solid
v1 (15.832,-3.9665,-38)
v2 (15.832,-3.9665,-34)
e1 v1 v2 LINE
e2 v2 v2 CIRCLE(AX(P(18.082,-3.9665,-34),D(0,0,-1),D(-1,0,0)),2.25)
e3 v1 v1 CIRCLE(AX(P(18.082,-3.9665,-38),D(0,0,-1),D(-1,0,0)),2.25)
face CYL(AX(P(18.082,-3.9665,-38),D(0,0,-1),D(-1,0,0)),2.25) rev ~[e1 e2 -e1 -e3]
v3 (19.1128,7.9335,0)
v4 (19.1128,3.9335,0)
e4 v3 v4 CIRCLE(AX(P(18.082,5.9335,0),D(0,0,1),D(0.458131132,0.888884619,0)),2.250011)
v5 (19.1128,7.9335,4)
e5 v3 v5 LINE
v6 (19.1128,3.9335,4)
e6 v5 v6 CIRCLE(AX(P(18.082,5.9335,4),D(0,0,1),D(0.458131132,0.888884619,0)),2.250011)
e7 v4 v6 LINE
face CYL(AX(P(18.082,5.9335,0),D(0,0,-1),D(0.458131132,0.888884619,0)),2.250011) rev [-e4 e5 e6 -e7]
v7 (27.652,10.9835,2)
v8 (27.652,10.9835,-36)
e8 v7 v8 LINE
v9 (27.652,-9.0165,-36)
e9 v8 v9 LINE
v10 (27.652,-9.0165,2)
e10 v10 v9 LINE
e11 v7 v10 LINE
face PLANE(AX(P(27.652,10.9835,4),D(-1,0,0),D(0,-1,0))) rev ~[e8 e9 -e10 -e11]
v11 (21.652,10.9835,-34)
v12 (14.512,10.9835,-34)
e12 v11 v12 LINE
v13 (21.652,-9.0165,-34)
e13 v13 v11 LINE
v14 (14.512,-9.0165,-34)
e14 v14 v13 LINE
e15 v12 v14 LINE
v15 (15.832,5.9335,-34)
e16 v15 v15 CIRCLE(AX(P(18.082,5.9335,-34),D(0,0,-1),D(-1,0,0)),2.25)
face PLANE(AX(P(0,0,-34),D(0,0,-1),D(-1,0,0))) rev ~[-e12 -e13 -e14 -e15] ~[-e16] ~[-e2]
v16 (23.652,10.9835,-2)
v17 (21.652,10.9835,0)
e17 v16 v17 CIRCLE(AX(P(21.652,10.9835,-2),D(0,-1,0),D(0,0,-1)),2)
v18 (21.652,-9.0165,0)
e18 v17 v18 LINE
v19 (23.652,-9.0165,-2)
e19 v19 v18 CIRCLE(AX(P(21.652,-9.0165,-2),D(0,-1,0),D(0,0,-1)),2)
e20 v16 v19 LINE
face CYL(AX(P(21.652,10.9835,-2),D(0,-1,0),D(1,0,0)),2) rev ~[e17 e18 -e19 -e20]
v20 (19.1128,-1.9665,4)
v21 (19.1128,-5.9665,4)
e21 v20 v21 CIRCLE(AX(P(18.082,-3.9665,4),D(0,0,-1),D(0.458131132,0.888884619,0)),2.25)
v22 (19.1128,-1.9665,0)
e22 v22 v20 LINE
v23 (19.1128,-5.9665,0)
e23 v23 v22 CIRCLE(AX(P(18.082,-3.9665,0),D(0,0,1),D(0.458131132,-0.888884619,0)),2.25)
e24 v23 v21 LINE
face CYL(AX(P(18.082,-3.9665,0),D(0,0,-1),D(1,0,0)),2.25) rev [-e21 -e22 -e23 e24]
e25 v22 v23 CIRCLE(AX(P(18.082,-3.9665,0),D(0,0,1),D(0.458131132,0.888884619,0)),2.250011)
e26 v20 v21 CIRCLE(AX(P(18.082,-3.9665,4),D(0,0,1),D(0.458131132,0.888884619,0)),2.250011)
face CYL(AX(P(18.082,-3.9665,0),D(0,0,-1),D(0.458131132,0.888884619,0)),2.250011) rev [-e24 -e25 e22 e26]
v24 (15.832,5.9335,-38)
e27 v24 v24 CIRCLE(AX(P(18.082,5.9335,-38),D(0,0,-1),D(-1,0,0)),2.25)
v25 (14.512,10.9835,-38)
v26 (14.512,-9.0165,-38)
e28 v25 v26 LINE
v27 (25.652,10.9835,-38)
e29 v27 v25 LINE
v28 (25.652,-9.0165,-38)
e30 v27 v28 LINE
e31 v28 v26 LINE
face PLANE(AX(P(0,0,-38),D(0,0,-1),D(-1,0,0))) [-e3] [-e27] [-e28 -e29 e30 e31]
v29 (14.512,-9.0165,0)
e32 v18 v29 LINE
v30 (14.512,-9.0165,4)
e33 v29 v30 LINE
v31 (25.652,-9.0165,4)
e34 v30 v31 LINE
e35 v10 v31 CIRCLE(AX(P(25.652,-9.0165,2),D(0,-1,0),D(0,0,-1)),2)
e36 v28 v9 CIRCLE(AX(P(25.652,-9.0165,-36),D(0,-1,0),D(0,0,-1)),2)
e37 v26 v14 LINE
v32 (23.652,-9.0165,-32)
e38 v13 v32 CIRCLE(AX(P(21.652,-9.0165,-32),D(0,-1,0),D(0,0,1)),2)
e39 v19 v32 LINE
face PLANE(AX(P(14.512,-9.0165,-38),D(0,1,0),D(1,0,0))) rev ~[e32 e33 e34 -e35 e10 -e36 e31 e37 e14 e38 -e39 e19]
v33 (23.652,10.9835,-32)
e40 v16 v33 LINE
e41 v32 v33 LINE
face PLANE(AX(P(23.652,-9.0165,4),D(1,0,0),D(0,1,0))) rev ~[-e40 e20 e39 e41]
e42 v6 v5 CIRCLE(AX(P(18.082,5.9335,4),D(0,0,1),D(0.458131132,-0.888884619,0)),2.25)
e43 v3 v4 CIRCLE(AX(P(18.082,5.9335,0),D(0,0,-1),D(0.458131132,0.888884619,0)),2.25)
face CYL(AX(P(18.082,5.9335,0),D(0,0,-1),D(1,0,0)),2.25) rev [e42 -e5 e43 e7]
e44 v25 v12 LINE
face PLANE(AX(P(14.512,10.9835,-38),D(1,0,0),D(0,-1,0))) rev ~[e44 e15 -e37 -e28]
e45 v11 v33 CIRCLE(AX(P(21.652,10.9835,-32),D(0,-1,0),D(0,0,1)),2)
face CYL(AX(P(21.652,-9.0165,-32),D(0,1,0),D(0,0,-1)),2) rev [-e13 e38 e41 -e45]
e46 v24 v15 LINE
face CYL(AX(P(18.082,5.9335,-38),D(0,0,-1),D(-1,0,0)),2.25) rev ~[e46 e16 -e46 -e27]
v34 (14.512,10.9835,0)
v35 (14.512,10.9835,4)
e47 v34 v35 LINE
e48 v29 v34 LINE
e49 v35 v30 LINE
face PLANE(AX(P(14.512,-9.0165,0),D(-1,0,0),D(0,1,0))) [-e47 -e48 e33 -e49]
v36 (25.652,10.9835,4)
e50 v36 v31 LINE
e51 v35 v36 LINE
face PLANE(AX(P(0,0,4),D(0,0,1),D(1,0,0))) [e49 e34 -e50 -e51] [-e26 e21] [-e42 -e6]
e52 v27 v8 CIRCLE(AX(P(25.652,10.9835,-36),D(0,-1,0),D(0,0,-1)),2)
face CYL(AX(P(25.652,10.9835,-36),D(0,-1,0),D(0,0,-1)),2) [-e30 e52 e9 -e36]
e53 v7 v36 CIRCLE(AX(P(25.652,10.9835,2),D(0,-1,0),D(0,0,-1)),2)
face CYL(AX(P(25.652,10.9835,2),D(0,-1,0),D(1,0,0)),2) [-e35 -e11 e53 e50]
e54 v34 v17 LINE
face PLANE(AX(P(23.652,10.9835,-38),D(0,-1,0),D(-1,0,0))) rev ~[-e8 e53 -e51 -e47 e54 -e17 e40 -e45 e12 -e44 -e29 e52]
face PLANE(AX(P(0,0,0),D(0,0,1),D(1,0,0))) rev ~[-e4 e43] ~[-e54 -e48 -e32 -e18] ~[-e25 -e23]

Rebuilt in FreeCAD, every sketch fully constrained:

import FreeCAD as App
import Part
import Sketcher

V = App.Vector
Q = App.Units.Quantity


def edges_at(feature, points):
    """Names of the edges that pass closest to the given points."""
    edges = feature.Shape.Edges
    near = lambda p: min(range(len(edges)), key=lambda i: edges[i].distToShape(Part.Vertex(*p))[0])
    return sorted({f"Edge{near(p) + 1}" for p in points})

doc = App.newDocument("Part")
params = doc.addObject("Spreadsheet::Sheet", "Params")
for row, (alias, value) in enumerate([
    ("sketch1_diameter", "4.5 mm"),
    ("sketch1_height", "20 mm"),
    ("sketch1_width", "9.14 mm"),
    ("pad1_length", "4 mm"),
    ("sketch2_width", "4 mm"),
    ("sketch2_height", "20 mm"),
    ("pad2_length", "42 mm"),
    ("sketch3_diameter", "4.5 mm"),
    ("sketch3_height", "20 mm"),
    ("sketch3_width", "9.14 mm"),
    ("pad3_length", "4 mm"),
    ("fillet_radius", "2 mm"),
], start=1):
    params.set(f"A{row}", alias)
    params.set(f"B{row}", "=" + value)
    params.setAlias(f"B{row}", alias)

body = doc.addObject("PartDesign::Body", "Body")

# Sketch on XY plane
sketch1 = body.newObject("Sketcher::SketchObject", "Sketch")
sketch1.AttachmentSupport = (doc.getObject("XY_Plane"), [""])
sketch1.MapMode = "FlatFace"
sketch1.addGeometry([
    Part.LineSegment(V(14.5, -9, 0), V(23.7, -9, 0)),  # 0
    Part.LineSegment(V(23.7, -9, 0), V(23.7, 11, 0)),  # 1
    Part.LineSegment(V(23.7, 11, 0), V(14.5, 11, 0)),  # 2
    Part.LineSegment(V(14.5, 11, 0), V(14.5, -9, 0)),  # 3
    Part.Circle(V(18.1, 5.9, 0), V(0, 0, 1), 2.2),  # 4
    Part.Circle(V(18.1, -4, 0), V(0, 0, 1), 2.2),  # 5
], False)
sketch1.addConstraint([
    Sketcher.Constraint("Coincident", 0, 2, 1, 1),
    Sketcher.Constraint("Coincident", 1, 2, 2, 1),
    Sketcher.Constraint("Coincident", 2, 2, 3, 1),
    Sketcher.Constraint("Coincident", 3, 2, 0, 1),
    Sketcher.Constraint("Horizontal", 0),
    Sketcher.Constraint("Vertical", 1),
    Sketcher.Constraint("Horizontal", 2),
    Sketcher.Constraint("Vertical", 3),
    Sketcher.Constraint("Equal", 4, 5),
    Sketcher.Constraint("Vertical", 4, 3, 5, 3),
    Sketcher.Constraint("Diameter", 4, Q("4.5 mm")),
    Sketcher.Constraint("DistanceY", 1, 1, 1, 2, Q("20 mm")),
    Sketcher.Constraint("DistanceX", 0, 1, 0, 2, Q("9.14 mm")),
    Sketcher.Constraint("DistanceY", 5, 3, 4, 3, Q("9.9 mm")),
    Sketcher.Constraint("DistanceX", 5, 3, 0, 2, Q("5.57 mm")),
    Sketcher.Constraint("DistanceY", 0, 2, 5, 3, Q("5.05 mm")),
    Sketcher.Constraint("DistanceX", -1, 1, 4, 3, Q("18.082 mm")),
    Sketcher.Constraint("DistanceY", -1, 1, 4, 3, Q("5.9335 mm")),
])
sketch1.setExpression("Constraints[10]", "Params.sketch1_diameter")
sketch1.setExpression("Constraints[11]", "Params.sketch1_height")
sketch1.setExpression("Constraints[12]", "Params.sketch1_width")
pad1 = body.newObject("PartDesign::Pad", "Pad")
pad1.Profile = sketch1
pad1.setExpression("Length", "Params.pad1_length")

# Sketch on XY plane
sketch2 = body.newObject("Sketcher::SketchObject", "Sketch001")
sketch2.AttachmentSupport = (doc.getObject("XY_Plane"), [""])
sketch2.MapMode = "FlatFace"
sketch2.AttachmentOffset = App.Placement(V(0, 0, 4), App.Rotation())
sketch2.addGeometry([
    Part.LineSegment(V(27.7, 11, 0), V(23.7, 11, 0)),
    Part.LineSegment(V(23.7, 11, 0), V(23.7, -9, 0)),
    Part.LineSegment(V(23.7, -9, 0), V(27.7, -9, 0)),
    Part.LineSegment(V(27.7, -9, 0), V(27.7, 11, 0)),
], False)
sketch2.addConstraint([
    Sketcher.Constraint("Coincident", 0, 2, 1, 1),
    Sketcher.Constraint("Coincident", 1, 2, 2, 1),
    Sketcher.Constraint("Coincident", 2, 2, 3, 1),
    Sketcher.Constraint("Coincident", 3, 2, 0, 1),
    Sketcher.Constraint("Horizontal", 0),
    Sketcher.Constraint("Vertical", 1),
    Sketcher.Constraint("Horizontal", 2),
    Sketcher.Constraint("Vertical", 3),
    Sketcher.Constraint("DistanceX", 0, 2, 0, 1, Q("4 mm")),
    Sketcher.Constraint("DistanceY", 1, 2, 1, 1, Q("20 mm")),
    Sketcher.Constraint("DistanceX", -1, 1, 0, 2, Q("23.652 mm")),
    Sketcher.Constraint("DistanceY", -1, 1, 0, 2, Q("10.9835 mm")),
])
sketch2.setExpression("Constraints[8]", "Params.sketch2_width")
sketch2.setExpression("Constraints[9]", "Params.sketch2_height")
pad2 = body.newObject("PartDesign::Pad", "Pad001")
pad2.Profile = sketch2
pad2.setExpression("Length", "Params.pad2_length")
pad2.Reversed = True

# Sketch on XY plane
sketch3 = body.newObject("Sketcher::SketchObject", "Sketch002")
sketch3.AttachmentSupport = (doc.getObject("XY_Plane"), [""])
sketch3.MapMode = "FlatFace"
sketch3.AttachmentOffset = App.Placement(V(0, 0, -38), App.Rotation())
sketch3.addGeometry([
    Part.LineSegment(V(14.5, 11, 0), V(23.7, 11, 0)),  # 0
    Part.LineSegment(V(23.7, 11, 0), V(23.7, -9, 0)),  # 1
    Part.LineSegment(V(23.7, -9, 0), V(14.5, -9, 0)),  # 2
    Part.LineSegment(V(14.5, -9, 0), V(14.5, 11, 0)),  # 3
    Part.Circle(V(18.1, -4, 0), V(0, 0, 1), 2.2),  # 4
    Part.Circle(V(18.1, 5.9, 0), V(0, 0, 1), 2.2),  # 5
], False)
sketch3.addConstraint([
    Sketcher.Constraint("Coincident", 0, 2, 1, 1),
    Sketcher.Constraint("Coincident", 1, 2, 2, 1),
    Sketcher.Constraint("Coincident", 2, 2, 3, 1),
    Sketcher.Constraint("Coincident", 3, 2, 0, 1),
    Sketcher.Constraint("Horizontal", 0),
    Sketcher.Constraint("Vertical", 1),
    Sketcher.Constraint("Horizontal", 2),
    Sketcher.Constraint("Vertical", 3),
    Sketcher.Constraint("Equal", 4, 5),
    Sketcher.Constraint("Vertical", 4, 3, 5, 3),
    Sketcher.Constraint("Diameter", 4, Q("4.5 mm")),
    Sketcher.Constraint("DistanceY", 1, 2, 1, 1, Q("20 mm")),
    Sketcher.Constraint("DistanceX", 0, 1, 0, 2, Q("9.14 mm")),
    Sketcher.Constraint("DistanceY", 4, 3, 5, 3, Q("9.9 mm")),
    Sketcher.Constraint("DistanceX", 5, 3, 0, 2, Q("5.57 mm")),
    Sketcher.Constraint("DistanceY", 5, 3, 0, 2, Q("5.05 mm")),
    Sketcher.Constraint("DistanceX", -1, 1, 4, 3, Q("18.082 mm")),
    Sketcher.Constraint("DistanceY", 4, 3, -1, 1, Q("3.9665 mm")),
])
sketch3.setExpression("Constraints[10]", "Params.sketch3_diameter")
sketch3.setExpression("Constraints[11]", "Params.sketch3_height")
sketch3.setExpression("Constraints[12]", "Params.sketch3_width")
pad3 = body.newObject("PartDesign::Pad", "Pad002")
pad3.Profile = sketch3
pad3.setExpression("Length", "Params.pad3_length")
doc.recompute()

fillet = body.newObject("PartDesign::Fillet", "Fillet")
fillet.Base = (pad3, edges_at(pad3, [
    (23.652, 0.984, 0),
    (23.652, 0.984, -34),
    (27.652, 0.984, -38),
    (27.652, 0.984, 4),
]))
fillet.setExpression("Radius", "Params.fillet_radius")

doc.recompute()
